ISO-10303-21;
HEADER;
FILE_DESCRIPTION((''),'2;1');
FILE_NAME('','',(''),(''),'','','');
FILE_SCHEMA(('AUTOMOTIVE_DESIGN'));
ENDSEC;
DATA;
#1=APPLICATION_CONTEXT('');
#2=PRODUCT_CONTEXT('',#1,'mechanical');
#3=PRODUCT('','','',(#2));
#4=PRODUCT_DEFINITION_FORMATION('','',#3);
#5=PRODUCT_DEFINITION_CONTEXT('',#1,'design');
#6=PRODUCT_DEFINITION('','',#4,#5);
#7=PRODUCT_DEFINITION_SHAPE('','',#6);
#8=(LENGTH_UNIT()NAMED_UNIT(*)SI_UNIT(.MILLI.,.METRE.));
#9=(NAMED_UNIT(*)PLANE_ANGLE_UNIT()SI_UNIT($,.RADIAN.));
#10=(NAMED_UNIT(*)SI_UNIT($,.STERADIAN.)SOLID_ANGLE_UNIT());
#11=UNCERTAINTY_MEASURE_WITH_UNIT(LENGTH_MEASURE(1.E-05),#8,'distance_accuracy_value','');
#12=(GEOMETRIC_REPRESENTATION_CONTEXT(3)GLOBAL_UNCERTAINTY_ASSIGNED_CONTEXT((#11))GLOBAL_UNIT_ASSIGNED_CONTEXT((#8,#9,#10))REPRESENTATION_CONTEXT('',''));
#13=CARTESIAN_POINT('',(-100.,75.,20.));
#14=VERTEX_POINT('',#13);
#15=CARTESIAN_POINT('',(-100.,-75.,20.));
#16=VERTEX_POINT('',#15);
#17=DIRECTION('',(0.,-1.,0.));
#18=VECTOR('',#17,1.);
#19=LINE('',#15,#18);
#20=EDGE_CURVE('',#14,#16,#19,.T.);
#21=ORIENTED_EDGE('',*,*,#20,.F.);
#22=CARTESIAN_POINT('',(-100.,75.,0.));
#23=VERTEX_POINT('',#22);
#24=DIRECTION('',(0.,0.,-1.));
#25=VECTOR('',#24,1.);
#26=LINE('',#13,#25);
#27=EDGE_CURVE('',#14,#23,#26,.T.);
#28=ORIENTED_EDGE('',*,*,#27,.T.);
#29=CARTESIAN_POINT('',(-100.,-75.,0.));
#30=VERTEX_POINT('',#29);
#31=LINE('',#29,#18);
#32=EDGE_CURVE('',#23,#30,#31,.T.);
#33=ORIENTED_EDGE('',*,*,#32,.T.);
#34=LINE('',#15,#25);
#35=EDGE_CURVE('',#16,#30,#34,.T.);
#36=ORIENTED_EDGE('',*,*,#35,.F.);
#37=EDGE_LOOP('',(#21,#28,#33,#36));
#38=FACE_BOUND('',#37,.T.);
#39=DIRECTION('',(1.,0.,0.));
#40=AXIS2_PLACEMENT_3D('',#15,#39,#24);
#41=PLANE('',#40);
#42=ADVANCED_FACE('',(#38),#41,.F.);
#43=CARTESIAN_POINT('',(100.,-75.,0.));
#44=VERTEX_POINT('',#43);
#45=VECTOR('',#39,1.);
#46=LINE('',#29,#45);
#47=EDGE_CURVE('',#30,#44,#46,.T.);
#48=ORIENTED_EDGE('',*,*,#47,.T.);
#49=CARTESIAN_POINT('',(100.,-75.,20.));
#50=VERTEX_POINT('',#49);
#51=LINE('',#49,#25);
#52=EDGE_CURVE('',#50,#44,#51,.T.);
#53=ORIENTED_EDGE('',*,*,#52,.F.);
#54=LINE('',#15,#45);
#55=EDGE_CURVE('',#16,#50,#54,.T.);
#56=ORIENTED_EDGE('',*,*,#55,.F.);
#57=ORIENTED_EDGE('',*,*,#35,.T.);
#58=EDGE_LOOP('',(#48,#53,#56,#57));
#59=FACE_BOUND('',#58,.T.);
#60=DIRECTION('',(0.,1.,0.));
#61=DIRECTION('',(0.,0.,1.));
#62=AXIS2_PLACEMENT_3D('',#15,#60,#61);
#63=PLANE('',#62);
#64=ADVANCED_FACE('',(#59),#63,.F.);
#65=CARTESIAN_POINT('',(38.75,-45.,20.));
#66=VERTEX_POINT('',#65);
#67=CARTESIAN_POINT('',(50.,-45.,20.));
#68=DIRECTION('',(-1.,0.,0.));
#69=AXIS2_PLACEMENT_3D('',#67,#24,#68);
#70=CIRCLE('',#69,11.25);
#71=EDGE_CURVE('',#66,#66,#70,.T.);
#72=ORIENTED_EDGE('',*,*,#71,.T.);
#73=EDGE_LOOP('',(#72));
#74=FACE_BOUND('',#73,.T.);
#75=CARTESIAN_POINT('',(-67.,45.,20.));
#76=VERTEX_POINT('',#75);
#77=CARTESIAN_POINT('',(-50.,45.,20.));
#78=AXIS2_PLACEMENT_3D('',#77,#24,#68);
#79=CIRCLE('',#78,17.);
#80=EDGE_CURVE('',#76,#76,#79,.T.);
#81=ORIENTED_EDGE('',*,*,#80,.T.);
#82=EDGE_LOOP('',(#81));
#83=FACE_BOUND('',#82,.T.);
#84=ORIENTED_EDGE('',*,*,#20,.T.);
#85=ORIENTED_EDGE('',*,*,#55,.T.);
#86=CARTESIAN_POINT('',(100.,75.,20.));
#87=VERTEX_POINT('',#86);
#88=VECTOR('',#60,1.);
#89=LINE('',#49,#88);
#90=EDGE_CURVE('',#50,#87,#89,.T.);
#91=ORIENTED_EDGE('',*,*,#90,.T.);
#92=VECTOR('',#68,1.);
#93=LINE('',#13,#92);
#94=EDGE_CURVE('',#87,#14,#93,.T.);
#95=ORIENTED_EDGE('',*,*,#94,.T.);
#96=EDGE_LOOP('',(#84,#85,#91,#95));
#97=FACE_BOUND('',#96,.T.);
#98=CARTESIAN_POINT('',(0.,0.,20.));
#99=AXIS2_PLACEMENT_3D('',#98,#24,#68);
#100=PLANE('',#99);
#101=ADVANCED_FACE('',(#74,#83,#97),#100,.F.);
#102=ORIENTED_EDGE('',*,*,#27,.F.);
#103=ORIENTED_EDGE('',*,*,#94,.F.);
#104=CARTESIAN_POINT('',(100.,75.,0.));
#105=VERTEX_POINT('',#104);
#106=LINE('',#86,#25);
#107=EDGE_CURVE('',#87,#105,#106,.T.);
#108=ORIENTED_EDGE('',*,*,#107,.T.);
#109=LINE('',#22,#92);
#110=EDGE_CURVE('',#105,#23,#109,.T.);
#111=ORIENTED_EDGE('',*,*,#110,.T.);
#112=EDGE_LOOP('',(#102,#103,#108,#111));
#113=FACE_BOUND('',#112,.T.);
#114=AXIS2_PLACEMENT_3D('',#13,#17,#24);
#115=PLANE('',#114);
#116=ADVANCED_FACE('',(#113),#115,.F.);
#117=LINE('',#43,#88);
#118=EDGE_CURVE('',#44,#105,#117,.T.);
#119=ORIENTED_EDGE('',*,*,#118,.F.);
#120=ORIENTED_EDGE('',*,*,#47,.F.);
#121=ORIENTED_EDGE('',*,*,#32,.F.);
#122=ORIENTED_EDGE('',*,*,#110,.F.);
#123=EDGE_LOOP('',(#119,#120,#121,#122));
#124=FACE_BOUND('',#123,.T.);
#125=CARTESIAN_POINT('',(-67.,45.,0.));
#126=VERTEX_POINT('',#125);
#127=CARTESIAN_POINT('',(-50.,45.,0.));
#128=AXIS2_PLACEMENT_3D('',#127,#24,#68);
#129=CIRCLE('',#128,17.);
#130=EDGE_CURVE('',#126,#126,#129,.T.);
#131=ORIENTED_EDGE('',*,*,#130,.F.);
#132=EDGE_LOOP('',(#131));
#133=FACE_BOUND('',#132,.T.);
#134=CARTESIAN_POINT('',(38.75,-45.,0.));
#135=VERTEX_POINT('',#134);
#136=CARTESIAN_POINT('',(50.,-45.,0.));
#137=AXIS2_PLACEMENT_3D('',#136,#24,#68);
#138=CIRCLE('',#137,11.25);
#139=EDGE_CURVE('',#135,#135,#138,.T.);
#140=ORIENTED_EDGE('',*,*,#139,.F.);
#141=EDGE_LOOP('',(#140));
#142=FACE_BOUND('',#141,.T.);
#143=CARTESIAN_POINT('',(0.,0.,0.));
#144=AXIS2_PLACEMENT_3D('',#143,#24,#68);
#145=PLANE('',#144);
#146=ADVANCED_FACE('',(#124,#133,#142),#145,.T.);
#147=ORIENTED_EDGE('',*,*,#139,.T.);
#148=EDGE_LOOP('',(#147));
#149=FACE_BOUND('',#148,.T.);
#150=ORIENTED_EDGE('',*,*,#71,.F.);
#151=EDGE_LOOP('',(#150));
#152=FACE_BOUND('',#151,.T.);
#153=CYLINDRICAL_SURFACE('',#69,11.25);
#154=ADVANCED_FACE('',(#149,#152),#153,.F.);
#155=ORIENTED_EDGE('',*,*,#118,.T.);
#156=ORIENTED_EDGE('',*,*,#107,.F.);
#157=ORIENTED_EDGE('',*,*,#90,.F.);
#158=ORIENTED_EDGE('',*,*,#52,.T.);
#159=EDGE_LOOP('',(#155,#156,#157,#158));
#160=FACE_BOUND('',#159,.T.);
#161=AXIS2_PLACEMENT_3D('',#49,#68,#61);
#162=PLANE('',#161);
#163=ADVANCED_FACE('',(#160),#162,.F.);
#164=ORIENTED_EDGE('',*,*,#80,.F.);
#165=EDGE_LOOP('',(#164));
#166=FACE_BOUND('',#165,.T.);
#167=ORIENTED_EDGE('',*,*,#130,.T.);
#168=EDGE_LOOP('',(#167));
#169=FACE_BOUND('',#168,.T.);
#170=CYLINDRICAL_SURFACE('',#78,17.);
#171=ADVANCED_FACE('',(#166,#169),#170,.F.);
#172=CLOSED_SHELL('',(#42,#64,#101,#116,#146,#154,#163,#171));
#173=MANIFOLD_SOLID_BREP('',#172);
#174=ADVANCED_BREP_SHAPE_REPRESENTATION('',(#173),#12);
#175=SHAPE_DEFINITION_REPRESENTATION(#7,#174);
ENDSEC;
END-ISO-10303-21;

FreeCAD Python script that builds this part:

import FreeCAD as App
import Part
import Sketcher


def add_polygon(sketch, points):
    """Adds a closed chain of lines whose ends are joined by coincident constraints."""
    first, n = sketch.GeometryCount, len(points)
    for a, b in zip(points, points[1:] + points[:1]):
        sketch.addGeometry(Part.LineSegment(App.Vector(*a, 0), App.Vector(*b, 0)), False)
    for i in range(n):
        sketch.addConstraint(Sketcher.Constraint("Coincident", first + i, 2, first + (i + 1) % n, 1))

doc = App.newDocument("Part")
body = doc.addObject("PartDesign::Body", "Body")

sketch1 = body.newObject("Sketcher::SketchObject", "Sketch")
sketch1.AttachmentSupport = (doc.getObject("XY_Plane"), [""])
sketch1.MapMode = "FlatFace"
add_polygon(sketch1, [(-100, 75), (-100, -75), (100, -75), (100, 75)])
sketch1.addConstraint([
    Sketcher.Constraint("Vertical", 0),
    Sketcher.Constraint("Horizontal", 1),
    Sketcher.Constraint("Vertical", 2),
    Sketcher.Constraint("Horizontal", 3),
    Sketcher.Constraint("Symmetric", 0, 2, 2, 2, -1, 1),
    Sketcher.Constraint("DistanceX", 1, 1, 1, 2, 200.0),
    Sketcher.Constraint("DistanceY", 0, 2, 0, 1, 150.0),
])
pad1 = body.newObject("PartDesign::Pad", "Pad")
pad1.Profile = sketch1
pad1.Length = 20

sketch2 = body.newObject("Sketcher::SketchObject", "Sketch001")
sketch2.AttachmentSupport = (doc.getObject("XY_Plane"), [""])
sketch2.MapMode = "FlatFace"
sketch2.addGeometry([
    Part.Circle(App.Vector(50, -45, 0), App.Vector(0, 0, 1), 11),
    Part.Circle(App.Vector(-50, 45, 0), App.Vector(0, 0, 1), 17),
], False)
sketch2.addConstraint([
    Sketcher.Constraint("Symmetric", 0, 3, 1, 3, -1, 1),
    Sketcher.Constraint("Diameter", 1, 34.0),
    Sketcher.Constraint("Diameter", 0, 22.5),
    Sketcher.Constraint("DistanceX", -1, 1, 0, 3, 50.0),
    Sketcher.Constraint("DistanceY", 0, 3, -1, 1, 45.0),
])
pocket1 = body.newObject("PartDesign::Pocket", "Pocket")
pocket1.Profile = sketch2
pocket1.Type = "ThroughAll"
pocket1.Reversed = True

doc.recompute()
